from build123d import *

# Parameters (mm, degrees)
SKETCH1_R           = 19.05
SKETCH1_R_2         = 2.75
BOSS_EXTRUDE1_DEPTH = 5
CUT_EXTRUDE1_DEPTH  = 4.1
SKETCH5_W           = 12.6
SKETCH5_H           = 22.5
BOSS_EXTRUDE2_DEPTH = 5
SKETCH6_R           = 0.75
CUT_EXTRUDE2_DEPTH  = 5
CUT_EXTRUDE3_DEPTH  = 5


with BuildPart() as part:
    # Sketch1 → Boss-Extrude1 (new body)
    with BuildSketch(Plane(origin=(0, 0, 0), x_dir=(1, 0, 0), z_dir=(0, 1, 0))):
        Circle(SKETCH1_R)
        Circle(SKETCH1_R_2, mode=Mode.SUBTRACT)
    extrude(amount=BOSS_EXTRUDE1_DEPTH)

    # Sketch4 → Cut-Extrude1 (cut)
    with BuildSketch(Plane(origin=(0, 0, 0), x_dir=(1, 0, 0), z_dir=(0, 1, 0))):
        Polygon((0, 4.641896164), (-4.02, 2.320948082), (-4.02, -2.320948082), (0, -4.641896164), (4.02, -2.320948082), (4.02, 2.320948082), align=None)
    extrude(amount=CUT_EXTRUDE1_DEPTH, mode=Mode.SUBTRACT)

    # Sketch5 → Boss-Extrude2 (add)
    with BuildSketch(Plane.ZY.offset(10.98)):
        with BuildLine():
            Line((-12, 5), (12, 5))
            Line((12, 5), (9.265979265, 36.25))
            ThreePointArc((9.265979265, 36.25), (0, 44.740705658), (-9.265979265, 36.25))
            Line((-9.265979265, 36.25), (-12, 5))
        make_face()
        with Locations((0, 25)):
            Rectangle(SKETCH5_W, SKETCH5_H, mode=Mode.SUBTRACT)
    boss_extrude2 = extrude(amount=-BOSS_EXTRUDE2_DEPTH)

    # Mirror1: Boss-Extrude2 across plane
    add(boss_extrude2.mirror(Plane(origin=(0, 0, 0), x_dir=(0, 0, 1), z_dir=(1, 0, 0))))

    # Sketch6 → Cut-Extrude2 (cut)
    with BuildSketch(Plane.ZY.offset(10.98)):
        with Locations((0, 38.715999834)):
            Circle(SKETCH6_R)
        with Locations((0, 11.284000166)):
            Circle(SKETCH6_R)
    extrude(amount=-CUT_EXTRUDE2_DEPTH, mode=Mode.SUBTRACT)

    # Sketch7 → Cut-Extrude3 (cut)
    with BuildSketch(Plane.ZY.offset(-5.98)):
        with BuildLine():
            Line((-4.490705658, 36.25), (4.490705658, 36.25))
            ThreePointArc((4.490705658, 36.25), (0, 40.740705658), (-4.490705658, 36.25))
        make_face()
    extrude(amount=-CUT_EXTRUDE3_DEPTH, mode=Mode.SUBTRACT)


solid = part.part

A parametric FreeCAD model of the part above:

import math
import FreeCAD as App
import Part
import Sketcher

V = App.Vector
Q = App.Units.Quantity

doc = App.newDocument("Part")
body = doc.addObject("PartDesign::Body", "Body")

# Sketch on XZ plane
sketch1 = doc.addObject("Sketcher::SketchObject", "Sketch")
body.addObject(sketch1)
sketch1.AttachmentSupport = (doc.XZ_Plane, [""])
sketch1.MapMode = "FlatFace"
sketch1.addGeometry([
    Part.Circle(V(0, 0, 0), V(0, 0, 1), 19.1),
    Part.Circle(V(0, 0, 0), V(0, 0, 1), 2.8),
], False)
sketch1.addConstraint([
    Sketcher.Constraint("Coincident", 0, 3, -1, 1),
    Sketcher.Constraint("Coincident", 1, 3, -1, 1),
    Sketcher.Constraint("Diameter", 0, Q("38.1 mm")),
    Sketcher.Constraint("Diameter", 1, Q("5.5 mm")),
])
pad1 = doc.addObject("PartDesign::Pad", "Pad")
body.addObject(pad1)
pad1.Profile = sketch1
pad1.Length = 5
pad1.Reversed = True

# Sketch on XZ plane
sketch2 = doc.addObject("Sketcher::SketchObject", "Sketch001")
body.addObject(sketch2)
sketch2.AttachmentSupport = (doc.XZ_Plane, [""])
sketch2.MapMode = "FlatFace"
sketch2.addGeometry([
    Part.LineSegment(V(0, -4.6, 0), V(-4, -2.3, 0)),  # 0
    Part.LineSegment(V(-4, -2.3, 0), V(-4, 2.3, 0)),  # 1
    Part.LineSegment(V(-4, 2.3, 0), V(0, 4.6, 0)),  # 2
    Part.LineSegment(V(0, 4.6, 0), V(4, 2.3, 0)),  # 3
    Part.LineSegment(V(4, 2.3, 0), V(4, -2.3, 0)),  # 4
    Part.LineSegment(V(4, -2.3, 0), V(0, -4.6, 0)),  # 5
], False)
sketch2.addConstraint([
    Sketcher.Constraint("Coincident", 0, 2, 1, 1),
    Sketcher.Constraint("Coincident", 1, 2, 2, 1),
    Sketcher.Constraint("Coincident", 2, 2, 3, 1),
    Sketcher.Constraint("Coincident", 3, 2, 4, 1),
    Sketcher.Constraint("Coincident", 4, 2, 5, 1),
    Sketcher.Constraint("Coincident", 5, 2, 0, 1),
    Sketcher.Constraint("Vertical", 1),
    Sketcher.Constraint("Vertical", 4),
    Sketcher.Constraint("Symmetric", 0, 2, 3, 2, -1, 1),
    Sketcher.Constraint("Symmetric", 2, 2, 5, 2, -1, 1),
    Sketcher.Constraint("PointOnObject", 2, 2, -2),
    Sketcher.Constraint("Parallel", 2, 5),
    Sketcher.Constraint("Horizontal", 1, 2, 3, 2),
    Sketcher.Constraint("Angle", 0, Q("150 deg")),
    Sketcher.Constraint("DistanceX", 0, 2, -1, 1, Q("4.02 mm")),
    Sketcher.Constraint("DistanceY", 1, 1, 1, 2, Q("4.641896 mm")),
])
pocket1 = doc.addObject("PartDesign::Pocket", "Pocket")
body.addObject(pocket1)
pocket1.Profile = sketch2
pocket1.Length = 4.1

# Sketch on YZ plane
sketch3 = doc.addObject("Sketcher::SketchObject", "Sketch002")
body.addObject(sketch3)
sketch3.AttachmentSupport = (doc.YZ_Plane, [""])
sketch3.MapMode = "FlatFace"
sketch3.AttachmentOffset = App.Placement(V(0, 0, -10.98), App.Rotation())
sketch3.addGeometry([
    Part.LineSegment(V(5, -12, 0), V(5, 12, 0)),  # 0
    Part.LineSegment(V(5, 12, 0), V(36, 9, 0)),  # 1
    Part.ArcOfCircle(Part.Circle(V(35, 0, 0), V(0, 0, 1), 9), math.radians(-85), math.radians(85)),  # 2
    Part.LineSegment(V(36, -9, 0), V(5, -12, 0)),  # 3
    Part.LineSegment(V(14, 6, 0), V(14, -6, 0)),  # 4
    Part.LineSegment(V(14, -6, 0), V(36, -6, 0)),  # 5
    Part.LineSegment(V(36, -6, 0), V(36, 6, 0)),  # 6
    Part.LineSegment(V(36, 6, 0), V(14, 6, 0)),  # 7
], False)
sketch3.addConstraint([
    Sketcher.Constraint("Coincident", 0, 2, 1, 1),
    Sketcher.Constraint("Tangent", 1, 2, 2, 2),
    Sketcher.Constraint("Tangent", 2, 1, 3, 1),
    Sketcher.Constraint("Coincident", 3, 2, 0, 1),
    Sketcher.Constraint("Coincident", 4, 2, 5, 1),
    Sketcher.Constraint("Coincident", 5, 2, 6, 1),
    Sketcher.Constraint("Coincident", 6, 2, 7, 1),
    Sketcher.Constraint("Coincident", 7, 2, 4, 1),
    Sketcher.Constraint("Vertical", 0),
    Sketcher.Constraint("Vertical", 4),
    Sketcher.Constraint("Horizontal", 5),
    Sketcher.Constraint("Vertical", 6),
    Sketcher.Constraint("Horizontal", 7),
    Sketcher.Constraint("Symmetric", 1, 2, 2, 1, -1),
    Sketcher.Constraint("Vertical", 2, 1, 5, 2),
    Sketcher.Constraint("DistanceY", 0, 1, 0, 2, Q("24 mm")),
    Sketcher.Constraint("Angle", 1, Q("-5 deg")),
    Sketcher.Constraint("DistanceX", 5, 1, 5, 2, Q("22.5 mm")),
    Sketcher.Constraint("DistanceY", 4, 2, 4, 1, Q("12.6 mm")),
    Sketcher.Constraint("DistanceX", -1, 1, 0, 2, Q("5 mm")),
    Sketcher.Constraint("DistanceY", 4, 2, -1, 1, Q("6.3 mm")),
    Sketcher.Constraint("DistanceX", -1, 1, 1, 2, Q("36.25 mm")),
])
pad2 = doc.addObject("PartDesign::Pad", "Pad001")
body.addObject(pad2)
pad2.Profile = sketch3
pad2.Length = 5
doc.recompute()

mirrored = doc.addObject("PartDesign::Mirrored", "Mirrored")
body.addObject(mirrored)
mirrored.Originals = [pad2]
mirrored.MirrorPlane = (doc.YZ_Plane, [""])
body.Tip = mirrored

# Sketch on YZ plane
sketch4 = doc.addObject("Sketcher::SketchObject", "Sketch003")
body.addObject(sketch4)
sketch4.AttachmentSupport = (doc.YZ_Plane, [""])
sketch4.MapMode = "FlatFace"
sketch4.AttachmentOffset = App.Placement(V(0, 0, -10.98), App.Rotation())
sketch4.addGeometry([
    Part.Circle(V(38.7, 0, 0), V(0, 0, 1), 0.8),
    Part.Circle(V(11.3, 0, 0), V(0, 0, 1), 0.8),
], False)
sketch4.addConstraint([
    Sketcher.Constraint("Equal", 0, 1),
    Sketcher.Constraint("PointOnObject", 0, 3, -1),
    Sketcher.Constraint("PointOnObject", 1, 3, -1),
    Sketcher.Constraint("Diameter", 0, Q("1.5 mm")),
    Sketcher.Constraint("DistanceX", -1, 1, 0, 3, Q("38.716 mm")),
    Sketcher.Constraint("DistanceX", -1, 1, 1, 3, Q("11.284 mm")),
])
pocket2 = doc.addObject("PartDesign::Pocket", "Pocket001")
body.addObject(pocket2)
pocket2.Profile = sketch4
pocket2.Length = 5
pocket2.Reversed = True

# Sketch on YZ plane
sketch5 = doc.addObject("Sketcher::SketchObject", "Sketch004")
body.addObject(sketch5)
sketch5.AttachmentSupport = (doc.YZ_Plane, [""])
sketch5.MapMode = "FlatFace"
sketch5.AttachmentOffset = App.Placement(V(0, 0, 5.98), App.Rotation())
sketch5.addGeometry([
    Part.LineSegment(V(36.2, -4.5, 0), V(36.2, 4.5, 0)),
    Part.ArcOfCircle(Part.Circle(V(36.2, 0, 0), V(0, 0, 1), 4.5), math.radians(-90), math.radians(90)),
], False)
sketch5.addConstraint([
    Sketcher.Constraint("Coincident", 0, 1, 1, 1),
    Sketcher.Constraint("Coincident", 1, 2, 0, 2),
    Sketcher.Constraint("Vertical", 0),
    Sketcher.Constraint("PointOnObject", 1, 3, -1),
    Sketcher.Constraint("Vertical", 1, 3, 0, 1),
    Sketcher.Constraint("DistanceX", -1, 1, 1, 3, Q("36.25 mm")),
    Sketcher.Constraint("Radius", 1, Q("4.490706 mm")),
])
pocket3 = doc.addObject("PartDesign::Pocket", "Pocket002")
body.addObject(pocket3)
pocket3.Profile = sketch5
pocket3.Length = 5
pocket3.Reversed = True

doc.recompute()
